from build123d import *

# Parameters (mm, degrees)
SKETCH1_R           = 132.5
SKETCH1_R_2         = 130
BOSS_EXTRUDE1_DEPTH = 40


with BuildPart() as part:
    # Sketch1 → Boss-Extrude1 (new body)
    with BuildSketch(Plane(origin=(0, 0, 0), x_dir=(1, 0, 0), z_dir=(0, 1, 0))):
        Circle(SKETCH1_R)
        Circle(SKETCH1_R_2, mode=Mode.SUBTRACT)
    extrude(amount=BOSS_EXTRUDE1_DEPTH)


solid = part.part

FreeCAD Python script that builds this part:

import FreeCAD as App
import Part
import Sketcher

V = App.Vector
Q = App.Units.Quantity

doc = App.newDocument("Part")
body = doc.addObject("PartDesign::Body", "Body")

# Sketch on XZ plane
sketch1 = body.newObject("Sketcher::SketchObject", "Sketch")
sketch1.AttachmentSupport = (doc.getObject("XZ_Plane"), [""])
sketch1.MapMode = "FlatFace"
sketch1.addGeometry([
    Part.Circle(V(0, 0, 0), V(0, 0, 1), 132),
    Part.Circle(V(0, 0, 0), V(0, 0, 1), 130),
], False)
sketch1.addConstraint([
    Sketcher.Constraint("Coincident", 0, 3, -1, 1),
    Sketcher.Constraint("Coincident", 1, 3, -1, 1),
    Sketcher.Constraint("Diameter", 0, Q("265 mm")),
    Sketcher.Constraint("Diameter", 1, Q("260 mm")),
])
pad1 = body.newObject("PartDesign::Pad", "Pad")
pad1.Profile = sketch1
pad1.Length = 40
pad1.Reversed = True

doc.recompute()
